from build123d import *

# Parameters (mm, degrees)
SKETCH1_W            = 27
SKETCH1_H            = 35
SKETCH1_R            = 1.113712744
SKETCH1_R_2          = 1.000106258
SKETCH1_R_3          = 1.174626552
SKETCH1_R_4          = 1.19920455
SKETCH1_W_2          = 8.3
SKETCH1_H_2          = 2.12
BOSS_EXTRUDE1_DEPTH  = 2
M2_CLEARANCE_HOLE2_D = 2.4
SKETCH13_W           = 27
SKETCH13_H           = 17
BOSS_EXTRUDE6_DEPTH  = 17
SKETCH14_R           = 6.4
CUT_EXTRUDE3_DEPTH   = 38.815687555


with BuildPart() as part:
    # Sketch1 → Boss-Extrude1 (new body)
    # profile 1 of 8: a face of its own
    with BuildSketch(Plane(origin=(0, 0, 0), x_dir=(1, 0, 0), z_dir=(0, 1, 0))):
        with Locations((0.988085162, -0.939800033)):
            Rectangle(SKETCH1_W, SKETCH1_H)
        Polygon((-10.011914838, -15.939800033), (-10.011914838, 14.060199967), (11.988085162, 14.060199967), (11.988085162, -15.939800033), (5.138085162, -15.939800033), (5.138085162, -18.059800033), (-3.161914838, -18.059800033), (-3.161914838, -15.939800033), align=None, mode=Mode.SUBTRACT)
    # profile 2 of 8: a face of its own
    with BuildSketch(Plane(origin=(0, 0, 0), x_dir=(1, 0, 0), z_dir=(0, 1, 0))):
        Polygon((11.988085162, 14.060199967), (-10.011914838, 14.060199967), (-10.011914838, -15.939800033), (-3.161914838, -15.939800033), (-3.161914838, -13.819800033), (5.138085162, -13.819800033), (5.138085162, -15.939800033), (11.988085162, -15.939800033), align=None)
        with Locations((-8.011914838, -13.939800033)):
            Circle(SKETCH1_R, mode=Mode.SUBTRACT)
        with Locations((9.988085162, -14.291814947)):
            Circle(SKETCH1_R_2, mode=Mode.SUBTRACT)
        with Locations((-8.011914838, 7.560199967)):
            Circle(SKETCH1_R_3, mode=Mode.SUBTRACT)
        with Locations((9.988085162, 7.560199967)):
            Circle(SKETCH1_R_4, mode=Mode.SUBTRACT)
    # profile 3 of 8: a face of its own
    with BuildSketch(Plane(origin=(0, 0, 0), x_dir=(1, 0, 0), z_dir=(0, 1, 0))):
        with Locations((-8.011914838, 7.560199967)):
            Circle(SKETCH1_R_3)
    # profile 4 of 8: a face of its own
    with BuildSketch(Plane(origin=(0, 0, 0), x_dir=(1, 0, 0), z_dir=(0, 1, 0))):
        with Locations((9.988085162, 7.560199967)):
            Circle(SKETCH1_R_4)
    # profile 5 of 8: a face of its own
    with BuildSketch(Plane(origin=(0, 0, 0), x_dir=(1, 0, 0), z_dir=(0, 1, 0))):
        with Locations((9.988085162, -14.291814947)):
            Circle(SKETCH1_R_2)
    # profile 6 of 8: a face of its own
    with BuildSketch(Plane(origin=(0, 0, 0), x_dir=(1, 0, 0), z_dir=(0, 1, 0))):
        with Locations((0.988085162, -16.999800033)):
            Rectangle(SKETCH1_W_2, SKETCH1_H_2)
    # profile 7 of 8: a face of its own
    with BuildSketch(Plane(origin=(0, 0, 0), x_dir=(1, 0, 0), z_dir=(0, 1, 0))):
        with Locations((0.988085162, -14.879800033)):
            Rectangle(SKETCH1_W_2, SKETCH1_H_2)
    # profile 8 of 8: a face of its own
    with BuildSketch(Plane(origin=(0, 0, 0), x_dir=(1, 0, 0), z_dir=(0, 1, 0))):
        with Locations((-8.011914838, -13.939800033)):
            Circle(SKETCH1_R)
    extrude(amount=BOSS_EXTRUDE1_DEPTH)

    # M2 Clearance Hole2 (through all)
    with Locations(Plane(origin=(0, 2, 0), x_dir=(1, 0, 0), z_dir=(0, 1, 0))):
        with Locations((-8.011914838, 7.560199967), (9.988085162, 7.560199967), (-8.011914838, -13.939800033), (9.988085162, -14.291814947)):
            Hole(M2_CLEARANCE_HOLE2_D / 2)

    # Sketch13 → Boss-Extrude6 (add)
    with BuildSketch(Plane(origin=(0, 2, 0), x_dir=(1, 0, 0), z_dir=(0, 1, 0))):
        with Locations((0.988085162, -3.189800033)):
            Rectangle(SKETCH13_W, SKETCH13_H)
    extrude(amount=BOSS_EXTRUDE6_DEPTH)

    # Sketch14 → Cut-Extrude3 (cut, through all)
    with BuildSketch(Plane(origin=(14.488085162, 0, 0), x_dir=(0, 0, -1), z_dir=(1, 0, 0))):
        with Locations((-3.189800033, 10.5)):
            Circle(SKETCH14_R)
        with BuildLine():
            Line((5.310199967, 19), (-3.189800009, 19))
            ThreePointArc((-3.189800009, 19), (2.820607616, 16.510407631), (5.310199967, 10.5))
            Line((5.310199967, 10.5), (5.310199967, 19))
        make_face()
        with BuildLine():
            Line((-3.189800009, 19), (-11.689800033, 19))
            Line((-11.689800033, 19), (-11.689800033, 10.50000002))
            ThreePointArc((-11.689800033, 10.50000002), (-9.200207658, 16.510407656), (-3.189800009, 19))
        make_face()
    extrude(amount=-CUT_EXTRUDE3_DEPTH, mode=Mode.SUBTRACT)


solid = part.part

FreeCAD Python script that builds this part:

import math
import FreeCAD as App
import Part
import Sketcher


def add_polygon(sketch, points):
    """Adds a closed chain of lines whose ends are joined by coincident constraints."""
    first, n = sketch.GeometryCount, len(points)
    for a, b in zip(points, points[1:] + points[:1]):
        sketch.addGeometry(Part.LineSegment(App.Vector(*a, 0), App.Vector(*b, 0)), False)
    for i in range(n):
        sketch.addConstraint(Sketcher.Constraint("Coincident", first + i, 2, first + (i + 1) % n, 1))

doc = App.newDocument("Part")
params = doc.addObject("Spreadsheet::Sheet", "Params")
for row, (alias, value) in enumerate([
    ("sketch1_width", "27 mm"),
    ("sketch1_height", "35 mm"),
    ("pad1_length", "2 mm"),
    ("sketch2_diameter", "2.4 mm"),
    ("hole_diameter", "2.4 mm"),
    ("sketch3_width", "27 mm"),
    ("sketch3_height", "17 mm"),
    ("pad2_length", "17 mm"),
    ("sketch4_diameter", "12.8 mm"),
    ("sketch4_radius", "8.5 mm"),
], start=1):
    params.set(f"A{row}", alias)
    params.set(f"B{row}", "=" + value)
    params.setAlias(f"B{row}", alias)

body = doc.addObject("PartDesign::Body", "Body")

sketch1 = doc.addObject("Sketcher::SketchObject", "Sketch")
body.addObject(sketch1)
sketch1.AttachmentSupport = (doc.XZ_Plane, [""])
sketch1.MapMode = "FlatFace"
add_polygon(sketch1, [(-13, -17), (-13, 18), (14, 18), (14, -17)])
sketch1.addConstraint(Sketcher.Constraint("Vertical", 0))
sketch1.addConstraint(Sketcher.Constraint("Horizontal", 1))
sketch1.addConstraint(Sketcher.Constraint("Vertical", 2))
sketch1.addConstraint(Sketcher.Constraint("Horizontal", 3))
sketch1.addConstraint(Sketcher.Constraint("DistanceX", 1, 1, 1, 2, 27.0))
sketch1.addConstraint(Sketcher.Constraint("DistanceY", 0, 1, 0, 2, 35.0))
sketch1.addConstraint(Sketcher.Constraint("DistanceY", -1, 1, 0, 2, 18.4398))
sketch1.addConstraint(Sketcher.Constraint("DistanceX", 0, 2, -1, 1, 12.511915))
sketch1.setExpression("Constraints[8]", "Params.sketch1_width")
sketch1.setExpression("Constraints[9]", "Params.sketch1_height")
pad1 = doc.addObject("PartDesign::Pad", "Pad")
body.addObject(pad1)
pad1.Profile = sketch1
pad1.setExpression("Length", "Params.pad1_length")
pad1.Reversed = True

sketch2 = doc.addObject("Sketcher::SketchObject", "Sketch001")
body.addObject(sketch2)
sketch2.AttachmentSupport = (doc.XZ_Plane, [""])
sketch2.MapMode = "FlatFace"
sketch2.AttachmentOffset = App.Placement(App.Vector(0, 0, -2), App.Rotation())
sketch2.addGeometry(Part.Circle(App.Vector(-8, -7.6, 0), App.Vector(0, 0, 1), 1.2), False)
sketch2.addGeometry(Part.Circle(App.Vector(10, -7.6, 0), App.Vector(0, 0, 1), 1.2), False)
sketch2.addGeometry(Part.Circle(App.Vector(-8, 13.9, 0), App.Vector(0, 0, 1), 1.2), False)
sketch2.addGeometry(Part.Circle(App.Vector(10, 14.3, 0), App.Vector(0, 0, 1), 1.2), False)
sketch2.addConstraint(Sketcher.Constraint("Equal", 0, 1))
sketch2.addConstraint(Sketcher.Constraint("Equal", 1, 2))
sketch2.addConstraint(Sketcher.Constraint("Equal", 2, 3))
sketch2.addConstraint(Sketcher.Constraint("Horizontal", 0, 3, 1, 3))
sketch2.addConstraint(Sketcher.Constraint("Vertical", 0, 3, 2, 3))
sketch2.addConstraint(Sketcher.Constraint("Vertical", 1, 3, 3, 3))
sketch2.addConstraint(Sketcher.Constraint("Diameter", 0, 2.4))
sketch2.addConstraint(Sketcher.Constraint("DistanceX", 0, 3, 1, 3, 18.0))
sketch2.addConstraint(Sketcher.Constraint("DistanceY", 0, 3, 2, 3, 21.5))
sketch2.addConstraint(Sketcher.Constraint("DistanceY", 0, 3, -1, 1, 7.5602))
sketch2.addConstraint(Sketcher.Constraint("DistanceX", 0, 3, -1, 1, 8.011915))
sketch2.addConstraint(Sketcher.Constraint("DistanceY", -1, 1, 3, 3, 14.291815))
sketch2.setExpression("Constraints[6]", "Params.sketch2_diameter")
doc.recompute()
hole = doc.addObject("PartDesign::Hole", "Hole")
body.addObject(hole)
hole.Profile = sketch2
hole.ThreadType = "None"
hole.setExpression("Diameter", "Params.hole_diameter")
hole.DepthType = "ThroughAll"
hole.Reversed = True

sketch3 = doc.addObject("Sketcher::SketchObject", "Sketch002")
body.addObject(sketch3)
sketch3.AttachmentSupport = (doc.XZ_Plane, [""])
sketch3.MapMode = "FlatFace"
sketch3.AttachmentOffset = App.Placement(App.Vector(0, 0, -2), App.Rotation())
add_polygon(sketch3, [(-13, -5), (-13, 12), (14, 12), (14, -5)])
sketch3.addConstraint(Sketcher.Constraint("Vertical", 0))
sketch3.addConstraint(Sketcher.Constraint("Horizontal", 1))
sketch3.addConstraint(Sketcher.Constraint("Vertical", 2))
sketch3.addConstraint(Sketcher.Constraint("Horizontal", 3))
sketch3.addConstraint(Sketcher.Constraint("DistanceX", 1, 1, 1, 2, 27.0))
sketch3.addConstraint(Sketcher.Constraint("DistanceY", 0, 1, 0, 2, 17.0))
sketch3.addConstraint(Sketcher.Constraint("DistanceY", -1, 1, 0, 2, 11.6898))
sketch3.addConstraint(Sketcher.Constraint("DistanceX", 0, 2, -1, 1, 12.511915))
sketch3.setExpression("Constraints[8]", "Params.sketch3_width")
sketch3.setExpression("Constraints[9]", "Params.sketch3_height")
pad2 = doc.addObject("PartDesign::Pad", "Pad001")
body.addObject(pad2)
pad2.Profile = sketch3
pad2.setExpression("Length", "Params.pad2_length")
pad2.Reversed = True

sketch4 = doc.addObject("Sketcher::SketchObject", "Sketch003")
body.addObject(sketch4)
sketch4.AttachmentSupport = (doc.YZ_Plane, [""])
sketch4.MapMode = "FlatFace"
sketch4.AttachmentOffset = App.Placement(App.Vector(0, 0, 14.488085), App.Rotation())
sketch4.addGeometry(Part.Circle(App.Vector(10, 3, 0), App.Vector(0, 0, 1), 6), False)
sketch4.addGeometry(Part.LineSegment(App.Vector(19, -5, 0), App.Vector(19, 3, 0)), False)
sketch4.addGeometry(Part.ArcOfCircle(Part.Circle(App.Vector(10, 3, 0), App.Vector(0, 0, 1), 8), math.radians(-90), math.radians(0)), False)
sketch4.addGeometry(Part.LineSegment(App.Vector(10, -5, 0), App.Vector(19, -5, 0)), False)
sketch4.addGeometry(Part.LineSegment(App.Vector(19, 3, 0), App.Vector(19, 12, 0)), False)
sketch4.addGeometry(Part.LineSegment(App.Vector(19, 12, 0), App.Vector(11, 12, 0)), False)
sketch4.addGeometry(Part.ArcOfCircle(Part.Circle(App.Vector(11, 3, 0), App.Vector(0, 0, 1), 8), math.radians(0), math.radians(90)), False)
sketch4.addConstraint(Sketcher.Constraint("Tangent", 1, 2, 2, 2))
sketch4.addConstraint(Sketcher.Constraint("Tangent", 2, 1, 3, 1))
sketch4.addConstraint(Sketcher.Constraint("Coincident", 3, 2, 1, 1))
sketch4.addConstraint(Sketcher.Constraint("Coincident", 4, 2, 5, 1))
sketch4.addConstraint(Sketcher.Constraint("Tangent", 5, 2, 6, 2))
sketch4.addConstraint(Sketcher.Constraint("Tangent", 6, 1, 4, 1))
sketch4.addConstraint(Sketcher.Constraint("Vertical", 1))
sketch4.addConstraint(Sketcher.Constraint("Horizontal", 3))
sketch4.addConstraint(Sketcher.Constraint("Vertical", 4))
sketch4.addConstraint(Sketcher.Constraint("Horizontal", 5))
sketch4.addConstraint(Sketcher.Constraint("Coincident", 2, 3, 0, 3))
sketch4.addConstraint(Sketcher.Constraint("Coincident", 6, 3, 0, 3))
sketch4.addConstraint(Sketcher.Constraint("Equal", 2, 6))
sketch4.addConstraint(Sketcher.Constraint("Diameter", 0, 12.8))
sketch4.addConstraint(Sketcher.Constraint("Radius", 2, 8.5))
sketch4.addConstraint(Sketcher.Constraint("DistanceX", -1, 1, 1, 2, 19.0))
sketch4.addConstraint(Sketcher.Constraint("DistanceY", -1, 1, 0, 3, 3.1898))
sketch4.setExpression("Constraints[13]", "Params.sketch4_diameter")
sketch4.setExpression("Constraints[14]", "Params.sketch4_radius")
pocket1 = doc.addObject("PartDesign::Pocket", "Pocket")
body.addObject(pocket1)
pocket1.Profile = sketch4
pocket1.Type = "ThroughAll"

doc.recompute()
